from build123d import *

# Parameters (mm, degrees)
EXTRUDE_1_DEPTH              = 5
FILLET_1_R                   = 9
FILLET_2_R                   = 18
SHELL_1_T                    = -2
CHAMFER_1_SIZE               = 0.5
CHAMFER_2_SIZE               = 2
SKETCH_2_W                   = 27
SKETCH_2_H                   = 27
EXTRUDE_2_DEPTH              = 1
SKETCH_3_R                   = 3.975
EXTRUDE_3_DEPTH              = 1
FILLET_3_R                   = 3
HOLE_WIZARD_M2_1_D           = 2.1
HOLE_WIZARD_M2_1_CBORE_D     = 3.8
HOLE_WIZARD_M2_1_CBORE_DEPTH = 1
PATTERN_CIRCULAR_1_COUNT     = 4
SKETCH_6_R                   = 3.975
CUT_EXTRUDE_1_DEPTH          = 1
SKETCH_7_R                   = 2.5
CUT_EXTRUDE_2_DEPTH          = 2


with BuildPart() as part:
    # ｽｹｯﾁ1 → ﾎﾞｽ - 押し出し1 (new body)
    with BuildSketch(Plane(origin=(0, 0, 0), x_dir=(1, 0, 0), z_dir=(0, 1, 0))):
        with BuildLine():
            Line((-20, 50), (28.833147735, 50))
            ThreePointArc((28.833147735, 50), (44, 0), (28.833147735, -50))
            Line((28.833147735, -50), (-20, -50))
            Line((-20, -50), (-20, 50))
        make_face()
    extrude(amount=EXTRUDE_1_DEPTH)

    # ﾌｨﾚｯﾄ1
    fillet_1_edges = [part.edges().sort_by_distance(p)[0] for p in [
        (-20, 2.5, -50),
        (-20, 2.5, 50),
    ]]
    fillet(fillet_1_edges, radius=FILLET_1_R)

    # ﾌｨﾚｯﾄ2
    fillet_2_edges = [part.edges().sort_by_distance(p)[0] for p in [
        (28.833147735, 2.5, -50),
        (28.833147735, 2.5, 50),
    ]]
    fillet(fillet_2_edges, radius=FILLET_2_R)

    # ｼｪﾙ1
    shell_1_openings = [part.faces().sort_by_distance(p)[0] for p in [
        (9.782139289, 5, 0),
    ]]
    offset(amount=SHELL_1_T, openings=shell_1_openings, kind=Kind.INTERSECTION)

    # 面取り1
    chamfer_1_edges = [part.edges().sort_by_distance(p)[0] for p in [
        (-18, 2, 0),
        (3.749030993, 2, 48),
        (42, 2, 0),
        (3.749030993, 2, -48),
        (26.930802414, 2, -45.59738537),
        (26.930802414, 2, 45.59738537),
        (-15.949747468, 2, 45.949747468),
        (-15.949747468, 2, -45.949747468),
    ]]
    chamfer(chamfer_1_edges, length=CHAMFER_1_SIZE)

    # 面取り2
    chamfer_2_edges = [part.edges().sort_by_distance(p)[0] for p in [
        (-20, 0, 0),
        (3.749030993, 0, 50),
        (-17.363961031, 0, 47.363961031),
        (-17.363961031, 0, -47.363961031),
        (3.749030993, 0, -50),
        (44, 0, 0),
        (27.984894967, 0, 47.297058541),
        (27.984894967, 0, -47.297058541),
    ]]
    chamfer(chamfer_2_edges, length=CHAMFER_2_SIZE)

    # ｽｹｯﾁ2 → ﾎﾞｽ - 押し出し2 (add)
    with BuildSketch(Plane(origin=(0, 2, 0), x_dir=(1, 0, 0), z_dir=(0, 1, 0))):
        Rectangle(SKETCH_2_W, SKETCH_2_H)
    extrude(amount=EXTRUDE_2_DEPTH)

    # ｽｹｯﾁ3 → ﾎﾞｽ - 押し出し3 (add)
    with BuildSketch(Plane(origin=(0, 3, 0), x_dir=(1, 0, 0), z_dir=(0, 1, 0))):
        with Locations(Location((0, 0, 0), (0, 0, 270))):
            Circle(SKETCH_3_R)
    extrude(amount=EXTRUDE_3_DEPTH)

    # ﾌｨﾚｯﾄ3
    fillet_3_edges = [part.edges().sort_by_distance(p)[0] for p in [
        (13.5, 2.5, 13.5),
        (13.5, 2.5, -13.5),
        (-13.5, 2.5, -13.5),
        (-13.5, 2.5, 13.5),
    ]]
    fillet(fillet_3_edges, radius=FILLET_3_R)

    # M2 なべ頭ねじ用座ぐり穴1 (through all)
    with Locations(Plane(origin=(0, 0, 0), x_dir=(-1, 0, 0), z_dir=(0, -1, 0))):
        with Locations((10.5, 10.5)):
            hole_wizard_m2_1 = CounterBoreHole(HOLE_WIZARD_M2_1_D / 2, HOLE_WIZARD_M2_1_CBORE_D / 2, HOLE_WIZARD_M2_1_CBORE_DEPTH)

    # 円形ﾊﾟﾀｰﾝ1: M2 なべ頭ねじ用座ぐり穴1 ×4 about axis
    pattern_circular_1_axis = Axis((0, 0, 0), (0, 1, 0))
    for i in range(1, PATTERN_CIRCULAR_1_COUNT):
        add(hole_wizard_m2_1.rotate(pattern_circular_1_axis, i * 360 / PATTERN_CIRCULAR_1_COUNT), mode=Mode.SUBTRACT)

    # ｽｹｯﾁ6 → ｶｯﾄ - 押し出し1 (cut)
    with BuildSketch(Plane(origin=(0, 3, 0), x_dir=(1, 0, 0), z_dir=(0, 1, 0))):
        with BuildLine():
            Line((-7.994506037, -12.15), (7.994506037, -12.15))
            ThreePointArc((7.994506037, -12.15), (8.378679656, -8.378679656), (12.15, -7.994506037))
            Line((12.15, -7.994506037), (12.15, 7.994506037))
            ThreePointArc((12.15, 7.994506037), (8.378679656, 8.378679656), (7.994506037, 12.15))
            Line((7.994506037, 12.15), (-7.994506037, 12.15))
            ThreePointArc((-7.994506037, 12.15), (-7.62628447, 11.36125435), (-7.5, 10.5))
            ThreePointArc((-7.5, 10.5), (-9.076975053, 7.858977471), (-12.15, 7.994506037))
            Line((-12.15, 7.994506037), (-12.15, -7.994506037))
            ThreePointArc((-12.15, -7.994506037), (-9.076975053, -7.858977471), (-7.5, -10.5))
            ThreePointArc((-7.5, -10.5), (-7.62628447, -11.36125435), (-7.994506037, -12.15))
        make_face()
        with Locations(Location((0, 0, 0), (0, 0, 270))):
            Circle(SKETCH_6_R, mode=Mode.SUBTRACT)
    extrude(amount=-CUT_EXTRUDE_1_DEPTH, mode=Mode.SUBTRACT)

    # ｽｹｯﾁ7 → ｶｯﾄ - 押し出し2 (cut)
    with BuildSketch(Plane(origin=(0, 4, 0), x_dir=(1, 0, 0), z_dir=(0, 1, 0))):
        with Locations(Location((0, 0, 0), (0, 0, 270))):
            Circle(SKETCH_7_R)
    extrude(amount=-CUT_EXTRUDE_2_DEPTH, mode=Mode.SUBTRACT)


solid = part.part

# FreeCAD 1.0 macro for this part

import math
import FreeCAD as App
import Part
import Sketcher
Q = App.Units.Quantity


def edges_at(feature, points):
    """Names of the edges that pass closest to the given points."""
    edges = feature.Shape.Edges
    near = lambda p: min(range(len(edges)), key=lambda i: edges[i].distToShape(Part.Vertex(*p))[0])
    return sorted({f"Edge{near(p) + 1}" for p in points})


def faces_at(feature, points):
    """Names of the faces that lie closest to the given points."""
    faces = feature.Shape.Faces
    near = lambda p: min(range(len(faces)), key=lambda i: faces[i].distToShape(Part.Vertex(*p))[0])
    return sorted({f"Face{near(p) + 1}" for p in points})


def add_polygon(sketch, points):
    """Adds a closed chain of lines whose ends are joined by coincident constraints."""
    first, n = sketch.GeometryCount, len(points)
    for a, b in zip(points, points[1:] + points[:1]):
        sketch.addGeometry(Part.LineSegment(App.Vector(*a, 0), App.Vector(*b, 0)), False)
    for i in range(n):
        sketch.addConstraint(Sketcher.Constraint("Coincident", first + i, 2, first + (i + 1) % n, 1))

doc = App.newDocument("Part")
body = doc.addObject("PartDesign::Body", "Body")

# Sketch on XZ plane
sketch1 = body.newObject("Sketcher::SketchObject", "Sketch")
sketch1.AttachmentSupport = (doc.getObject("XZ_Plane"), [""])
sketch1.MapMode = "FlatFace"
sketch1.addGeometry([
    Part.LineSegment(App.Vector(29, -50, 0), App.Vector(-20, -50, 0)),
    Part.LineSegment(App.Vector(-20, -50, 0), App.Vector(-20, 50, 0)),
    Part.LineSegment(App.Vector(-20, 50, 0), App.Vector(29, 50, 0)),
    Part.ArcOfCircle(Part.Circle(App.Vector(-46, 0, 0), App.Vector(0, 0, 1), 90), math.radians(-34), math.radians(34)),
], False)
sketch1.addConstraint([
    Sketcher.Constraint("Coincident", 0, 2, 1, 1),
    Sketcher.Constraint("Coincident", 1, 2, 2, 1),
    Sketcher.Constraint("Coincident", 2, 2, 3, 2),
    Sketcher.Constraint("Coincident", 3, 1, 0, 1),
    Sketcher.Constraint("Horizontal", 0),
    Sketcher.Constraint("Vertical", 1),
    Sketcher.Constraint("Horizontal", 2),
    Sketcher.Constraint("Symmetric", 2, 2, 3, 1, -1),
    Sketcher.Constraint("Radius", 3, Q("90 mm")),
    Sketcher.Constraint("DistanceY", 1, 1, 1, 2, Q("100 mm")),
    Sketcher.Constraint("DistanceX", 3, 3, -1, 1, Q("46 mm")),
    Sketcher.Constraint("DistanceX", 0, 2, -1, 1, Q("20 mm")),
])
pad1 = body.newObject("PartDesign::Pad", "Pad")
pad1.Profile = sketch1
pad1.Length = 5
pad1.Reversed = True
doc.recompute()

fillet = body.newObject("PartDesign::Fillet", "Fillet")
fillet.Base = (pad1, edges_at(pad1, [(-20, 2.5, -50), (-20, 2.5, 50)]))
fillet.Radius = 9
doc.recompute()

fillet2 = body.newObject("PartDesign::Fillet", "Fillet001")
fillet2.Base = (fillet, edges_at(fillet, [(28.833, 2.5, -50), (28.833, 2.5, 50)]))
fillet2.Radius = 18
doc.recompute()

thickness = body.newObject("PartDesign::Thickness", "Thickness")
thickness.Base = (fillet2, faces_at(fillet2, [(12, 5, 0)]))
thickness.Value = 2
thickness.Reversed = True
thickness.Join = "Intersection"
doc.recompute()

chamfer = body.newObject("PartDesign::Chamfer", "Chamfer")
chamfer.Base = (thickness, edges_at(thickness, [
    (-18, 2, 0),
    (3.749, 2, 48),
    (42, 2, 0),
    (3.749, 2, -48),
    (26.931, 2, -45.597),
    (26.931, 2, 45.597),
    (-15.95, 2, 45.95),
    (-15.95, 2, -45.95),
]))
chamfer.Size = 0.5
doc.recompute()

chamfer2 = body.newObject("PartDesign::Chamfer", "Chamfer001")
chamfer2.Base = (chamfer, edges_at(chamfer, [
    (-20, 0, 0),
    (3.749, 0, 50),
    (-17.364, 0, 47.364),
    (-17.364, 0, -47.364),
    (3.749, 0, -50),
    (44, 0, 0),
    (27.985, 0, 47.297),
    (27.985, 0, -47.297),
]))
chamfer2.Size = 2

# Sketch on XZ plane
sketch2 = body.newObject("Sketcher::SketchObject", "Sketch001")
sketch2.AttachmentSupport = (doc.getObject("XZ_Plane"), [""])
sketch2.MapMode = "FlatFace"
sketch2.AttachmentOffset = App.Placement(App.Vector(0, 0, -2), App.Rotation())
add_polygon(sketch2, [(-14, -14), (-14, 14), (14, 14), (14, -14)])  # lines 0-3
sketch2.addConstraint([
    Sketcher.Constraint("Vertical", 0),
    Sketcher.Constraint("Horizontal", 1),
    Sketcher.Constraint("Vertical", 2),
    Sketcher.Constraint("Horizontal", 3),
    Sketcher.Constraint("Symmetric", 0, 2, 2, 2, -1, 1),
    Sketcher.Constraint("Equal", 3, 0),
    Sketcher.Constraint("DistanceX", 1, 1, 1, 2, Q("27 mm")),
])
pad2 = body.newObject("PartDesign::Pad", "Pad001")
pad2.Profile = sketch2
pad2.Length = 1
pad2.Reversed = True

# Sketch on XZ plane
sketch3 = body.newObject("Sketcher::SketchObject", "Sketch002")
sketch3.AttachmentSupport = (doc.getObject("XZ_Plane"), [""])
sketch3.MapMode = "FlatFace"
sketch3.AttachmentOffset = App.Placement(App.Vector(0, 0, -3), App.Rotation())
sketch3.addGeometry(Part.Circle(App.Vector(0, 0, 0), App.Vector(0, 0, 1), 4), False)
sketch3.addConstraint([
    Sketcher.Constraint("Coincident", 0, 3, -1, 1),
    Sketcher.Constraint("Diameter", 0, Q("7.95 mm")),
])
pad3 = body.newObject("PartDesign::Pad", "Pad002")
pad3.Profile = sketch3
pad3.Length = 1
pad3.Reversed = True
doc.recompute()

fillet3 = body.newObject("PartDesign::Fillet", "Fillet002")
fillet3.Base = (pad3, edges_at(pad3, [
    (13.5, 2.5, 13.5),
    (13.5, 2.5, -13.5),
    (-13.5, 2.5, -13.5),
    (-13.5, 2.5, 13.5),
]))
fillet3.Radius = 3

# Sketch on XZ plane
sketch4 = body.newObject("Sketcher::SketchObject", "Sketch003")
sketch4.AttachmentSupport = (doc.getObject("XZ_Plane"), [""])
sketch4.MapMode = "FlatFace"
sketch4.addGeometry(Part.Circle(App.Vector(-10.5, -10.5, 0), App.Vector(0, 0, 1), 1.1), False)
sketch4.addConstraint([
    Sketcher.Constraint("Diameter", 0, Q("2.1 mm")),
    Sketcher.Constraint("DistanceX", 0, 3, -1, 1, Q("10.5 mm")),
    Sketcher.Constraint("DistanceY", 0, 3, -1, 1, Q("10.5 mm")),
])
doc.recompute()
hole = body.newObject("PartDesign::Hole", "Hole")
hole.Profile = sketch4
hole.ThreadType = "None"
hole.Diameter = 2.1
hole.DepthType = "ThroughAll"
hole.HoleCutType = "Counterbore"
hole.HoleCutDiameter = 3.8
hole.HoleCutDepth = 1
doc.recompute()

polarpattern = body.newObject("PartDesign::PolarPattern", "PolarPattern")
polarpattern.Originals = [hole]
polarpattern.Axis = (doc.getObject("Y_Axis"), [""])
polarpattern.Angle = 360
polarpattern.Occurrences = 4
body.Tip = polarpattern

# Sketch on XZ plane
sketch5 = body.newObject("Sketcher::SketchObject", "Sketch004")
sketch5.AttachmentSupport = (doc.getObject("XZ_Plane"), [""])
sketch5.MapMode = "FlatFace"
sketch5.AttachmentOffset = App.Placement(App.Vector(0, 0, -3), App.Rotation())
sketch5.addGeometry([
    Part.LineSegment(App.Vector(-8, 12.2, 0), App.Vector(8, 12.2, 0)),  # 0
    Part.ArcOfCircle(Part.Circle(App.Vector(10.5, 10.5, 0), App.Vector(0, 0, 1), 3), math.radians(147), math.radians(303)),  # 1
    Part.LineSegment(App.Vector(12.2, 8, 0), App.Vector(12.2, -8, 0)),  # 2
    Part.ArcOfCircle(Part.Circle(App.Vector(10.5, -10.5, 0), App.Vector(0, 0, 1), 3), math.radians(57), math.radians(213)),  # 3
    Part.LineSegment(App.Vector(8, -12.2, 0), App.Vector(-8, -12.2, 0)),  # 4
    Part.ArcOfCircle(Part.Circle(App.Vector(-10.5, -10.5, 0), App.Vector(0, 0, 1), 3), math.radians(-33), math.radians(0)),  # 5
    Part.ArcOfCircle(Part.Circle(App.Vector(-10.5, -10.5, 0), App.Vector(0, 0, 1), 3), math.radians(0), math.radians(123)),  # 6
    Part.LineSegment(App.Vector(-12.2, -8, 0), App.Vector(-12.2, 8, 0)),  # 7
    Part.ArcOfCircle(Part.Circle(App.Vector(-10.5, 10.5, 0), App.Vector(0, 0, 1), 3), math.radians(-123), math.radians(0)),  # 8
    Part.ArcOfCircle(Part.Circle(App.Vector(-10.5, 10.5, 0), App.Vector(0, 0, 1), 3), math.radians(0), math.radians(33)),  # 9
    Part.Circle(App.Vector(0, 0, 0), App.Vector(0, 0, 1), 4),  # 10
], False)
sketch5.addConstraint([
    Sketcher.Constraint("Coincident", 0, 2, 1, 1),
    Sketcher.Constraint("Coincident", 1, 2, 2, 1),
    Sketcher.Constraint("Coincident", 2, 2, 3, 1),
    Sketcher.Constraint("Coincident", 3, 2, 4, 1),
    Sketcher.Constraint("Coincident", 4, 2, 5, 1),
    Sketcher.Constraint("Tangent", 5, 2, 6, 1),
    Sketcher.Constraint("Coincident", 6, 2, 7, 1),
    Sketcher.Constraint("Coincident", 7, 2, 8, 1),
    Sketcher.Constraint("Tangent", 8, 2, 9, 1),
    Sketcher.Constraint("Coincident", 9, 2, 0, 1),
    Sketcher.Constraint("Horizontal", 0),
    Sketcher.Constraint("Vertical", 2),
    Sketcher.Constraint("Horizontal", 4),
    Sketcher.Constraint("Vertical", 7),
    Sketcher.Constraint("Coincident", 10, 3, -1, 1),
    Sketcher.Constraint("Equal", 1, 3),
    Sketcher.Constraint("Equal", 3, 5),
    Sketcher.Constraint("Equal", 5, 6),
    Sketcher.Constraint("Equal", 6, 8),
    Sketcher.Constraint("Equal", 8, 9),
    Sketcher.Constraint("Symmetric", 1, 3, 5, 3, -1, 1),
    Sketcher.Constraint("Symmetric", 3, 3, 8, 3, -1, 1),
    Sketcher.Constraint("Symmetric", 3, 3, 5, 3, -2),
    Sketcher.Constraint("Horizontal", 6, 3, 5, 2),
    Sketcher.Constraint("Horizontal", 2, 2, 6, 2),
    Sketcher.Constraint("Horizontal", 9, 3, 8, 2),
    Sketcher.Constraint("Vertical", 0, 2, 3, 2),
    Sketcher.Constraint("Equal", 4, 2),
    Sketcher.Constraint("Radius", 1, Q("3 mm")),
    Sketcher.Constraint("Diameter", 10, Q("7.95 mm")),
    Sketcher.Constraint("DistanceY", 3, 3, 1, 3, Q("21 mm")),
    Sketcher.Constraint("DistanceX", 5, 3, 3, 3, Q("21 mm")),
    Sketcher.Constraint("DistanceY", -1, 1, 0, 2, Q("12.15 mm")),
])
pocket1 = body.newObject("PartDesign::Pocket", "Pocket")
pocket1.Profile = sketch5
pocket1.Length = 1
pocket1.Reversed = True

# Sketch on XZ plane
sketch6 = body.newObject("Sketcher::SketchObject", "Sketch005")
sketch6.AttachmentSupport = (doc.getObject("XZ_Plane"), [""])
sketch6.MapMode = "FlatFace"
sketch6.AttachmentOffset = App.Placement(App.Vector(0, 0, -4), App.Rotation())
sketch6.addGeometry(Part.Circle(App.Vector(0, 0, 0), App.Vector(0, 0, 1), 2.5), False)
sketch6.addConstraint([
    Sketcher.Constraint("Coincident", 0, 3, -1, 1),
    Sketcher.Constraint("Diameter", 0, Q("5 mm")),
])
pocket2 = body.newObject("PartDesign::Pocket", "Pocket001")
pocket2.Profile = sketch6
pocket2.Length = 2
pocket2.Reversed = True

doc.recompute()
